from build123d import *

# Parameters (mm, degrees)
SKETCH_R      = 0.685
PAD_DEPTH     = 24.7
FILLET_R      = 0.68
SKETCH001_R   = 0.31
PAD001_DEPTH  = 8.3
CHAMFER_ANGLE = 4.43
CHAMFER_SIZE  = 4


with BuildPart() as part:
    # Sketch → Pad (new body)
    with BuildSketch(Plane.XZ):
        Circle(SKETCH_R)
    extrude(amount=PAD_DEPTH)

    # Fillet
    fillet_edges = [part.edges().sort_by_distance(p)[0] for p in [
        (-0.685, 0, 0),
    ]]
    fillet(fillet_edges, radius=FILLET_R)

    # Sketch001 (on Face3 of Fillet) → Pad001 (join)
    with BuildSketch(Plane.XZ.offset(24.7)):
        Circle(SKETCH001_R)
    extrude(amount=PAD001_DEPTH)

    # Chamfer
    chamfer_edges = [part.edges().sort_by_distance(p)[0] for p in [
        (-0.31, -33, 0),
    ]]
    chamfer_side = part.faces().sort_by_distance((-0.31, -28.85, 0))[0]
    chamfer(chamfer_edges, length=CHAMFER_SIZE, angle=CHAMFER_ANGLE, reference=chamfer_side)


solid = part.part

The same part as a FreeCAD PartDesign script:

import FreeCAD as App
import Part
import Sketcher

V = App.Vector


def edges_at(feature, points):
    """Names of the edges that pass closest to the given points."""
    edges = feature.Shape.Edges
    near = lambda p: min(range(len(edges)), key=lambda i: edges[i].distToShape(Part.Vertex(*p))[0])
    return sorted({f"Edge{near(p) + 1}" for p in points})

doc = App.newDocument("Part")
body = doc.addObject("PartDesign::Body", "Body")

sketch1 = body.newObject("Sketcher::SketchObject", "Sketch")
sketch1.AttachmentSupport = (doc.getObject("XZ_Plane"), [""])
sketch1.MapMode = "FlatFace"
sketch1.addGeometry(Part.Circle(V(0, 0, 0), V(0, 0, 1), 0.7), False)
sketch1.addConstraint([
    Sketcher.Constraint("Coincident", 0, 3, -1, 1),
    Sketcher.Constraint("Diameter", 0, 1.37),
])
pad1 = body.newObject("PartDesign::Pad", "Pad")
pad1.Profile = sketch1
pad1.Length = 24.7
doc.recompute()

fillet = body.newObject("PartDesign::Fillet", "Fillet")
fillet.Base = (pad1, edges_at(pad1, [(-0.685, 0, 0)]))
fillet.Radius = 0.68

sketch2 = body.newObject("Sketcher::SketchObject", "Sketch001")
sketch2.AttachmentSupport = (doc.getObject("XZ_Plane"), [""])
sketch2.MapMode = "FlatFace"
sketch2.AttachmentOffset = App.Placement(V(0, 0, 24.7), App.Rotation())
sketch2.addGeometry(Part.Circle(V(0, 0, 0), V(0, 0, 1), 0.31), False)
sketch2.addConstraint([
    Sketcher.Constraint("Coincident", 0, 3, -1, 1),
    Sketcher.Constraint("Diameter", 0, 0.62),
])
pad2 = body.newObject("PartDesign::Pad", "Pad001")
pad2.Profile = sketch2
pad2.Length = 8.3
doc.recompute()

chamfer = body.newObject("PartDesign::Chamfer", "Chamfer")
chamfer.Base = (pad2, edges_at(pad2, [(-0.31, -33, 0)]))
chamfer.ChamferType = "Distance and Angle"
chamfer.Size = 4
chamfer.Angle = 4.43

doc.recompute()
